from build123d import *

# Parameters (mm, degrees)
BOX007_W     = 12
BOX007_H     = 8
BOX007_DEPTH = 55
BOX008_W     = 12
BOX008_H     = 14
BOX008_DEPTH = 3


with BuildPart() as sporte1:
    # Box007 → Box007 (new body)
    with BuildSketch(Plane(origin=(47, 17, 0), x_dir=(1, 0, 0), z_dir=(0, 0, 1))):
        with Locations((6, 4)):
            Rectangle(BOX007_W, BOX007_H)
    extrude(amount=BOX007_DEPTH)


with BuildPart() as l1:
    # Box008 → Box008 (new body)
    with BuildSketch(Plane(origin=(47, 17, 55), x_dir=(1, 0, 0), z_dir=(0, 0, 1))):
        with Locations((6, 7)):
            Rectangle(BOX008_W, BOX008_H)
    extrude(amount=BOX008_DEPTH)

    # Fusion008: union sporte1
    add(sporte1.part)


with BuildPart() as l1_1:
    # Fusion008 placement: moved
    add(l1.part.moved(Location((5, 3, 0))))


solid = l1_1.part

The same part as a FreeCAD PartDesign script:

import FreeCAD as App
import Part
import Sketcher
from FreeCAD import Vector
Q = App.Units.Quantity


def add_polygon(sketch, points):
    """Adds a closed chain of lines whose ends are joined by coincident constraints."""
    first, n = sketch.GeometryCount, len(points)
    for a, b in zip(points, points[1:] + points[:1]):
        sketch.addGeometry(Part.LineSegment(App.Vector(*a, 0), App.Vector(*b, 0)), False)
    for i in range(n):
        sketch.addConstraint(Sketcher.Constraint("Coincident", first + i, 2, first + (i + 1) % n, 1))

doc = App.newDocument("Part")
body = doc.addObject("PartDesign::Body", "Body")

sketch1 = body.newObject("Sketcher::SketchObject", "Sketch")
sketch1.AttachmentSupport = (doc.getObject("XY_Plane"), [""])
sketch1.MapMode = "FlatFace"
add_polygon(sketch1, [(47, 25), (47, 17), (59, 17), (59, 25)])
sketch1.addConstraint([
    Sketcher.Constraint("Vertical", 0),
    Sketcher.Constraint("Horizontal", 1),
    Sketcher.Constraint("Vertical", 2),
    Sketcher.Constraint("Horizontal", 3),
    Sketcher.Constraint("DistanceX", 1, 1, 1, 2, Q("12 mm")),
    Sketcher.Constraint("DistanceY", 0, 2, 0, 1, Q("8 mm")),
    Sketcher.Constraint("DistanceX", -1, 1, 0, 2, Q("47 mm")),
    Sketcher.Constraint("DistanceY", -1, 1, 0, 2, Q("17 mm")),
])
pad1 = body.newObject("PartDesign::Pad", "Pad")
pad1.Profile = sketch1
pad1.Length = 55
body2 = doc.addObject("PartDesign::Body", "Body001")

sketch2 = body2.newObject("Sketcher::SketchObject", "Sketch001")
sketch2.AttachmentSupport = (doc.getObject("XY_Plane001"), [""])
sketch2.MapMode = "FlatFace"
sketch2.AttachmentOffset = App.Placement(Vector(0, 0, 55), App.Rotation())
add_polygon(sketch2, [(47, 31), (47, 17), (59, 17), (59, 31)])
sketch2.addConstraint([
    Sketcher.Constraint("Vertical", 0),
    Sketcher.Constraint("Horizontal", 1),
    Sketcher.Constraint("Vertical", 2),
    Sketcher.Constraint("Horizontal", 3),
    Sketcher.Constraint("DistanceX", 1, 1, 1, 2, Q("12 mm")),
    Sketcher.Constraint("DistanceY", 0, 2, 0, 1, Q("14 mm")),
    Sketcher.Constraint("DistanceX", -1, 1, 0, 2, Q("47 mm")),
    Sketcher.Constraint("DistanceY", -1, 1, 0, 2, Q("17 mm")),
])
pad2 = body2.newObject("PartDesign::Pad", "Pad001")
pad2.Profile = sketch2
pad2.Length = 3
doc.recompute()

boolean = body2.newObject("PartDesign::Boolean", "Boolean")
boolean.Type = "Fuse"
boolean.addObjects([body])
body3 = doc.addObject("PartDesign::Body", "Body002")
doc.recompute()

body2.Placement = App.Placement(Vector(5, 3, 0), App.Rotation(Vector(0, 0, 1), 0))
boolean2 = body3.newObject("PartDesign::Boolean", "Boolean001")
boolean2.Type = "Fuse"
boolean2.addObjects([body2])

doc.recompute()
